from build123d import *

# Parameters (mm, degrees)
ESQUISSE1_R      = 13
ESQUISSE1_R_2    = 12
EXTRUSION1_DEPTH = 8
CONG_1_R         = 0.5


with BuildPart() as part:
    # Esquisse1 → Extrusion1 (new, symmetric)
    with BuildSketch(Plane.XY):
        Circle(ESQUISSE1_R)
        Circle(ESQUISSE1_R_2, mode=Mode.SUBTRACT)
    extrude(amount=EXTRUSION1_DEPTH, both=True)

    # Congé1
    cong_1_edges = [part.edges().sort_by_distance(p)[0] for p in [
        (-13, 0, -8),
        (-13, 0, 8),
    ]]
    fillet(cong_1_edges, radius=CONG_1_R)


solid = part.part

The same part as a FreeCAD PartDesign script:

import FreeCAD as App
import Part
import Sketcher

V = App.Vector
Q = App.Units.Quantity


def edges_at(feature, points):
    """Names of the edges that pass closest to the given points."""
    edges = feature.Shape.Edges
    near = lambda p: min(range(len(edges)), key=lambda i: edges[i].distToShape(Part.Vertex(*p))[0])
    return sorted({f"Edge{near(p) + 1}" for p in points})

doc = App.newDocument("Part")
body = doc.addObject("PartDesign::Body", "Body")

# Sketch on XY plane
sketch1 = body.newObject("Sketcher::SketchObject", "Sketch")
sketch1.AttachmentSupport = (doc.getObject("XY_Plane"), [""])
sketch1.MapMode = "FlatFace"
sketch1.addGeometry(Part.Circle(V(0, 0, 0), V(0, 0, 1), 13), False)
sketch1.addGeometry(Part.Circle(V(0, 0, 0), V(0, 0, 1), 12), False)
sketch1.addConstraint(Sketcher.Constraint("Coincident", 0, 3, -1, 1))
sketch1.addConstraint(Sketcher.Constraint("Coincident", 1, 3, -1, 1))
sketch1.addConstraint(Sketcher.Constraint("Diameter", 0, Q("26 mm")))
sketch1.addConstraint(Sketcher.Constraint("Diameter", 1, Q("24 mm")))
pad1 = body.newObject("PartDesign::Pad", "Pad")
pad1.Profile = sketch1
pad1.Length = 16
pad1.Midplane = True
doc.recompute()

fillet = body.newObject("PartDesign::Fillet", "Fillet")
fillet.Base = (pad1, edges_at(pad1, [(-13, 0, -8), (-13, 0, 8)]))
fillet.Radius = 0.5

doc.recompute()
